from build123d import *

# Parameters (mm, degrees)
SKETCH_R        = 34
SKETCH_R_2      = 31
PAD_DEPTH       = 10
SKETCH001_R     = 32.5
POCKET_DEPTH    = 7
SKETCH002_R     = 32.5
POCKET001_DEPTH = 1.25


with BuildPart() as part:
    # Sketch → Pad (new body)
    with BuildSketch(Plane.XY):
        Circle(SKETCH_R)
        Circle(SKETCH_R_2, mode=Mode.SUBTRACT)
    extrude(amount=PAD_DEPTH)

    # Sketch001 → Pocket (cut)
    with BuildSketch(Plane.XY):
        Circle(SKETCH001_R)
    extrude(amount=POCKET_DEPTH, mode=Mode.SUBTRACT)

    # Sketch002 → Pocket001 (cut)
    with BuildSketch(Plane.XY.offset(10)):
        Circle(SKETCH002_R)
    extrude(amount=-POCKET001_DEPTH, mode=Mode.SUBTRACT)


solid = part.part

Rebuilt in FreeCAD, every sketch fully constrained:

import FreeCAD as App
import Part
import Sketcher

doc = App.newDocument("Part")
params = doc.addObject("Spreadsheet::Sheet", "Params")
for row, (alias, value) in enumerate([
    ("sketch1_diameter", "68 mm"),
    ("sketch1_diameter2", "62 mm"),
    ("pad1_length", "10 mm"),
    ("sketch2_diameter", "65 mm"),
    ("pocket1_length", "7 mm"),
    ("sketch3_diameter", "65 mm"),
    ("pocket2_length", "1.25 mm"),
], start=1):
    params.set(f"A{row}", alias)
    params.set(f"B{row}", "=" + value)
    params.setAlias(f"B{row}", alias)

body = doc.addObject("PartDesign::Body", "Body")

sketch1 = body.newObject("Sketcher::SketchObject", "Sketch")
sketch1.AttachmentSupport = (doc.getObject("XY_Plane"), [""])
sketch1.MapMode = "FlatFace"
sketch1.addGeometry([
    Part.Circle(App.Vector(0, 0, 0), App.Vector(0, 0, 1), 34),
    Part.Circle(App.Vector(0, 0, 0), App.Vector(0, 0, 1), 31),
], False)
sketch1.addConstraint([
    Sketcher.Constraint("Coincident", 0, 3, -1, 1),
    Sketcher.Constraint("Coincident", 1, 3, -1, 1),
    Sketcher.Constraint("Diameter", 0, 68.0),
    Sketcher.Constraint("Diameter", 1, 62.0),
])
sketch1.setExpression("Constraints[2]", "Params.sketch1_diameter")
sketch1.setExpression("Constraints[3]", "Params.sketch1_diameter2")
pad1 = body.newObject("PartDesign::Pad", "Pad")
pad1.Profile = sketch1
pad1.setExpression("Length", "Params.pad1_length")

sketch2 = body.newObject("Sketcher::SketchObject", "Sketch001")
sketch2.AttachmentSupport = (doc.getObject("XY_Plane"), [""])
sketch2.MapMode = "FlatFace"
sketch2.addGeometry(Part.Circle(App.Vector(0, 0, 0), App.Vector(0, 0, 1), 32), False)
sketch2.addConstraint([
    Sketcher.Constraint("Coincident", 0, 3, -1, 1),
    Sketcher.Constraint("Diameter", 0, 65.0),
])
sketch2.setExpression("Constraints[1]", "Params.sketch2_diameter")
pocket1 = body.newObject("PartDesign::Pocket", "Pocket")
pocket1.Profile = sketch2
pocket1.setExpression("Length", "Params.pocket1_length")
pocket1.Reversed = True

sketch3 = body.newObject("Sketcher::SketchObject", "Sketch002")
sketch3.AttachmentSupport = (doc.getObject("XY_Plane"), [""])
sketch3.MapMode = "FlatFace"
sketch3.AttachmentOffset = App.Placement(App.Vector(0, 0, 10), App.Rotation())
sketch3.addGeometry(Part.Circle(App.Vector(0, 0, 0), App.Vector(0, 0, 1), 32), False)
sketch3.addConstraint([
    Sketcher.Constraint("Coincident", 0, 3, -1, 1),
    Sketcher.Constraint("Diameter", 0, 65.0),
])
sketch3.setExpression("Constraints[1]", "Params.sketch3_diameter")
pocket2 = body.newObject("PartDesign::Pocket", "Pocket001")
pocket2.Profile = sketch3
pocket2.setExpression("Length", "Params.pocket2_length")

doc.recompute()
